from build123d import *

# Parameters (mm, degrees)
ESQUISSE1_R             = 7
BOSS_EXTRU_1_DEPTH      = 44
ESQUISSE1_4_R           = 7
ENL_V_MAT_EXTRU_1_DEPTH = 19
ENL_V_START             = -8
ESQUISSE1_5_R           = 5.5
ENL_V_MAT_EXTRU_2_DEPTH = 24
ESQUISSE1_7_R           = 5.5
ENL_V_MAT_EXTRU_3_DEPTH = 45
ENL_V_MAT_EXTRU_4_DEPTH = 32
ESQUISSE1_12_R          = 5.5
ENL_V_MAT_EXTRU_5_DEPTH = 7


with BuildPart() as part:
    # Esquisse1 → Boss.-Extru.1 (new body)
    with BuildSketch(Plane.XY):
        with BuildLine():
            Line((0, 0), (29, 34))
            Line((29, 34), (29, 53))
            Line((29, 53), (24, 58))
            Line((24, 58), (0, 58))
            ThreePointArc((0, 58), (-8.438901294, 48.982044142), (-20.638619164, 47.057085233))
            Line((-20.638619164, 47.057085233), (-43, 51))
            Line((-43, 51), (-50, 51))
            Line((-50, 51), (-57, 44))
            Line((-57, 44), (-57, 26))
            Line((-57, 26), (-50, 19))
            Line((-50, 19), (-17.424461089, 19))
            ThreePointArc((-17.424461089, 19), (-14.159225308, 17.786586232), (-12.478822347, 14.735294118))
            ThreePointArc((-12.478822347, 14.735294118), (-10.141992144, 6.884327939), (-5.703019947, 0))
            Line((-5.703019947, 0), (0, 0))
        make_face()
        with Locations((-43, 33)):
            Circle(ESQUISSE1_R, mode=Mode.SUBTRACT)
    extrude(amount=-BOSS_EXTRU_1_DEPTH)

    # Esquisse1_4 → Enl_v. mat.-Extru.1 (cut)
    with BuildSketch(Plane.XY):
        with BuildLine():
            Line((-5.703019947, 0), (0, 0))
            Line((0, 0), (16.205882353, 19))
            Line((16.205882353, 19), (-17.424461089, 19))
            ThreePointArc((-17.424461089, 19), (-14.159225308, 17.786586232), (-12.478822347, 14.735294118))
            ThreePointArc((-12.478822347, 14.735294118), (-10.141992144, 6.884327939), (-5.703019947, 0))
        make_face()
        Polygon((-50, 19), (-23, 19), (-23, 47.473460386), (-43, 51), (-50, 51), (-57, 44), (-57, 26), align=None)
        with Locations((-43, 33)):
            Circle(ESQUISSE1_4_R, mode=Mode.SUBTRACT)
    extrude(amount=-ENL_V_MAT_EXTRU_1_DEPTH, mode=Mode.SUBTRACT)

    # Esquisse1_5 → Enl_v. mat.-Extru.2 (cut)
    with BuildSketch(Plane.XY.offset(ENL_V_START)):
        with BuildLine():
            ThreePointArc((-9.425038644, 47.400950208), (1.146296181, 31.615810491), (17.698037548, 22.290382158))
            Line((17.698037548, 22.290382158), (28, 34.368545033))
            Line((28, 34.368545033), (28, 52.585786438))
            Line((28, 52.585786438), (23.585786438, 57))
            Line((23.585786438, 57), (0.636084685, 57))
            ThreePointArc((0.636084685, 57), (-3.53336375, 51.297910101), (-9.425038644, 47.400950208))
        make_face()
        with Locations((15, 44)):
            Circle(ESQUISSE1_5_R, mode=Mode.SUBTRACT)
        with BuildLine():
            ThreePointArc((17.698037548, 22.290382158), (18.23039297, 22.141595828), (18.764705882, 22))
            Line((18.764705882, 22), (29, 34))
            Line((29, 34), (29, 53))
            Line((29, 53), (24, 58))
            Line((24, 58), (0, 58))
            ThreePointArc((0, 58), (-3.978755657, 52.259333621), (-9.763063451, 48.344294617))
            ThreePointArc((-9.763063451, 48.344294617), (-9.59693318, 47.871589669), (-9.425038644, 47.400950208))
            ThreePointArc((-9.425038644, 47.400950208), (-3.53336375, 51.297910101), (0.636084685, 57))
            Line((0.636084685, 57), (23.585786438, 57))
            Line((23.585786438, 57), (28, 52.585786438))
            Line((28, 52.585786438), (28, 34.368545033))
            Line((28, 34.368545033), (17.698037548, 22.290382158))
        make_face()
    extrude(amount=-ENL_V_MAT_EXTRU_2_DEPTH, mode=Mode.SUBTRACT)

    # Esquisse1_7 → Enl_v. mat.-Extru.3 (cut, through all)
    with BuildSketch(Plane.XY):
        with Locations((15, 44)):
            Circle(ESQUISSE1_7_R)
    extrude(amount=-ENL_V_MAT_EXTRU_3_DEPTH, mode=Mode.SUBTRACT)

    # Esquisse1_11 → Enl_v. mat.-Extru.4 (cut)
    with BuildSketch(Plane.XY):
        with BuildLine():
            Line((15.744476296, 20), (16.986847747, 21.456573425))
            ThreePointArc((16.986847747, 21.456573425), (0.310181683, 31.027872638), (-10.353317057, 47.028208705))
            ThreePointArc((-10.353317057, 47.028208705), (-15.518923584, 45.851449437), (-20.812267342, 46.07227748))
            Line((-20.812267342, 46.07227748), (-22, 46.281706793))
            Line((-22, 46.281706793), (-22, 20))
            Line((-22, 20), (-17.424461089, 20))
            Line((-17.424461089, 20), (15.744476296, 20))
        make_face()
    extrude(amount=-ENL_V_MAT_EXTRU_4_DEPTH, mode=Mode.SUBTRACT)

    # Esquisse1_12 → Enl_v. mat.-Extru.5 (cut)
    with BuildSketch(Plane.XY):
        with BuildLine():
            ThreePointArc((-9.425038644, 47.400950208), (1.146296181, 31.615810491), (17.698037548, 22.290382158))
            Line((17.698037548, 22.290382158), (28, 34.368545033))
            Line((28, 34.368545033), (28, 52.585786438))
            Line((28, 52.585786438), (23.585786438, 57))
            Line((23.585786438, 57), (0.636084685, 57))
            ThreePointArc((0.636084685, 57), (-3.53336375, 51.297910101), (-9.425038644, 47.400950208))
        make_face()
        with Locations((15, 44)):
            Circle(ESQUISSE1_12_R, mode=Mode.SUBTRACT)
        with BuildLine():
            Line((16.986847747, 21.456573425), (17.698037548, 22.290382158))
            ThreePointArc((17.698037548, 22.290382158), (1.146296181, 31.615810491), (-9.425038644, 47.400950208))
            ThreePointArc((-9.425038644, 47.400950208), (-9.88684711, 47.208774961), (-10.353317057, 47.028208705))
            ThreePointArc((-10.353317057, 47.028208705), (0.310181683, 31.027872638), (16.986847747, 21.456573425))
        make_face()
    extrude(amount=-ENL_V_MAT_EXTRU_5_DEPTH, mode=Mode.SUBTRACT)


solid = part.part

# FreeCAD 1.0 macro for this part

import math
import FreeCAD as App
import Part
import Sketcher

V = App.Vector
Q = App.Units.Quantity

doc = App.newDocument("Part")
body = doc.addObject("PartDesign::Body", "Body")

# Sketch on XY plane
sketch1 = body.newObject("Sketcher::SketchObject", "Sketch")
sketch1.AttachmentSupport = (doc.getObject("XY_Plane"), [""])
sketch1.MapMode = "FlatFace"
sketch1.addGeometry(Part.LineSegment(V(0, 0, 0), V(29, 34, 0)), False)
sketch1.addGeometry(Part.LineSegment(V(29, 34, 0), V(29, 53, 0)), False)
sketch1.addGeometry(Part.LineSegment(V(29, 53, 0), V(24, 58, 0)), False)
sketch1.addGeometry(Part.LineSegment(V(24, 58, 0), V(0, 58, 0)), False)
sketch1.addGeometry(Part.ArcOfCircle(Part.Circle(V(-17, 66, 0), V(0, 0, 1), 19), math.radians(-100), math.radians(-24)), False)
sketch1.addGeometry(Part.LineSegment(V(-21, 47, 0), V(-43, 51, 0)), False)
sketch1.addGeometry(Part.LineSegment(V(-43, 51, 0), V(-50, 51, 0)), False)
sketch1.addGeometry(Part.LineSegment(V(-50, 51, 0), V(-57, 44, 0)), False)
sketch1.addGeometry(Part.LineSegment(V(-57, 44, 0), V(-57, 26, 0)), False)
sketch1.addGeometry(Part.LineSegment(V(-57, 26, 0), V(-50, 19, 0)), False)
sketch1.addGeometry(Part.LineSegment(V(-50, 19, 0), V(-17, 19, 0)), False)
sketch1.addGeometry(Part.ArcOfCircle(Part.Circle(V(-17, 14, 0), V(0, 0, 1), 5), math.radians(8), math.radians(90)), False)
sketch1.addGeometry(Part.ArcOfCircle(Part.Circle(V(16, 19, 0), V(0, 0, 1), 29), math.radians(-172), math.radians(-139)), False)
sketch1.addGeometry(Part.LineSegment(V(-6, 0, 0), V(0, 0, 0)), False)
sketch1.addGeometry(Part.Circle(V(-43, 33, 0), V(0, 0, 1), 7), False)
sketch1.addConstraint(Sketcher.Constraint("Coincident", 0, 2, 1, 1))
sketch1.addConstraint(Sketcher.Constraint("Coincident", 1, 2, 2, 1))
sketch1.addConstraint(Sketcher.Constraint("Coincident", 2, 2, 3, 1))
sketch1.addConstraint(Sketcher.Constraint("Coincident", 3, 2, 4, 2))
sketch1.addConstraint(Sketcher.Constraint("Tangent", 4, 1, 5, 1))
sketch1.addConstraint(Sketcher.Constraint("Coincident", 5, 2, 6, 1))
sketch1.addConstraint(Sketcher.Constraint("Coincident", 6, 2, 7, 1))
sketch1.addConstraint(Sketcher.Constraint("Coincident", 7, 2, 8, 1))
sketch1.addConstraint(Sketcher.Constraint("Coincident", 8, 2, 9, 1))
sketch1.addConstraint(Sketcher.Constraint("Coincident", 9, 2, 10, 1))
sketch1.addConstraint(Sketcher.Constraint("Tangent", 10, 2, 11, 2))
sketch1.addConstraint(Sketcher.Constraint("Tangent", 11, 1, 12, 1))
sketch1.addConstraint(Sketcher.Constraint("Coincident", 12, 2, 13, 1))
sketch1.addConstraint(Sketcher.Constraint("Coincident", 13, 2, 0, 1))
sketch1.addConstraint(Sketcher.Constraint("Vertical", 1))
sketch1.addConstraint(Sketcher.Constraint("Horizontal", 3))
sketch1.addConstraint(Sketcher.Constraint("Horizontal", 6))
sketch1.addConstraint(Sketcher.Constraint("Vertical", 8))
sketch1.addConstraint(Sketcher.Constraint("Horizontal", 10))
sketch1.addConstraint(Sketcher.Constraint("Horizontal", 13))
sketch1.addConstraint(Sketcher.Constraint("Coincident", 13, 2, -1, 1))
sketch1.addConstraint(Sketcher.Constraint("PointOnObject", 3, 2, -2))
sketch1.addConstraint(Sketcher.Constraint("Perpendicular", 2, 7))
sketch1.addConstraint(Sketcher.Constraint("Perpendicular", 7, 9))
sketch1.addConstraint(Sketcher.Constraint("Horizontal", 12, 3, 9, 2))
sketch1.addConstraint(Sketcher.Constraint("Vertical", 14, 3, 5, 2))
sketch1.addConstraint(Sketcher.Constraint("Vertical", 6, 2, 9, 2))
sketch1.addConstraint(Sketcher.Constraint("Equal", 7, 9))
sketch1.addConstraint(Sketcher.Constraint("Diameter", 14, 14.0))
sketch1.addConstraint(Sketcher.Constraint("Radius", 4, 19.0))
sketch1.addConstraint(Sketcher.Constraint("Radius", 11, 5.0))
sketch1.addConstraint(Sketcher.Constraint("Radius", 12, 29.0))
sketch1.addConstraint(Sketcher.Constraint("DistanceX", 3, 2, 3, 1, 24.0))
sketch1.addConstraint(Sketcher.Constraint("DistanceX", 6, 2, 6, 1, 7.0))
sketch1.addConstraint(Sketcher.Constraint("DistanceY", 1, 1, 1, 2, 19.0))
sketch1.addConstraint(Sketcher.Constraint("DistanceY", 8, 2, 8, 1, 18.0))
sketch1.addConstraint(Sketcher.Constraint("Angle", 5, Q("170 deg")))
sketch1.addConstraint(Sketcher.Constraint("DistanceY", -1, 1, 11, 3, 14.0))
sketch1.addConstraint(Sketcher.Constraint("DistanceX", 14, 3, -1, 1, 43.0))
sketch1.addConstraint(Sketcher.Constraint("DistanceY", -1, 1, 14, 3, 33.0))
sketch1.addConstraint(Sketcher.Constraint("DistanceX", -1, 1, 0, 2, 29.0))
sketch1.addConstraint(Sketcher.Constraint("DistanceY", -1, 1, 0, 2, 34.0))
sketch1.addConstraint(Sketcher.Constraint("DistanceY", -1, 1, 5, 2, 51.0))
sketch1.addConstraint(Sketcher.Constraint("DistanceX", 10, 1, 10, 2, 32.575539))
pad1 = body.newObject("PartDesign::Pad", "Pad")
pad1.Profile = sketch1
pad1.Length = 44
pad1.Reversed = True

# Sketch on XY plane
sketch2 = body.newObject("Sketcher::SketchObject", "Sketch001")
sketch2.AttachmentSupport = (doc.getObject("XY_Plane"), [""])
sketch2.MapMode = "FlatFace"
sketch2.addGeometry(Part.LineSegment(V(-6, 0, 0), V(0, 0, 0)), False)
sketch2.addGeometry(Part.LineSegment(V(0, 0, 0), V(16, 19, 0)), False)
sketch2.addGeometry(Part.LineSegment(V(16, 19, 0), V(-17, 19, 0)), False)
sketch2.addGeometry(Part.ArcOfCircle(Part.Circle(V(-17, 14, 0), V(0, 0, 1), 5), math.radians(8), math.radians(90)), False)
sketch2.addGeometry(Part.ArcOfCircle(Part.Circle(V(16, 19, 0), V(0, 0, 1), 29), math.radians(-172), math.radians(-139)), False)
sketch2.addGeometry(Part.LineSegment(V(-50, 19, 0), V(-23, 19, 0)), False)
sketch2.addGeometry(Part.LineSegment(V(-23, 19, 0), V(-23, 47, 0)), False)
sketch2.addGeometry(Part.LineSegment(V(-23, 47, 0), V(-43, 51, 0)), False)
sketch2.addGeometry(Part.LineSegment(V(-43, 51, 0), V(-50, 51, 0)), False)
sketch2.addGeometry(Part.LineSegment(V(-50, 51, 0), V(-57, 44, 0)), False)
sketch2.addGeometry(Part.LineSegment(V(-57, 44, 0), V(-57, 26, 0)), False)
sketch2.addGeometry(Part.LineSegment(V(-57, 26, 0), V(-50, 19, 0)), False)
sketch2.addGeometry(Part.Circle(V(-43, 33, 0), V(0, 0, 1), 7), False)
sketch2.addConstraint(Sketcher.Constraint("Coincident", 0, 2, 1, 1))
sketch2.addConstraint(Sketcher.Constraint("Coincident", 1, 2, 2, 1))
sketch2.addConstraint(Sketcher.Constraint("Tangent", 2, 2, 3, 2))
sketch2.addConstraint(Sketcher.Constraint("Tangent", 3, 1, 4, 1))
sketch2.addConstraint(Sketcher.Constraint("Coincident", 4, 2, 0, 1))
sketch2.addConstraint(Sketcher.Constraint("Coincident", 5, 2, 6, 1))
sketch2.addConstraint(Sketcher.Constraint("Coincident", 6, 2, 7, 1))
sketch2.addConstraint(Sketcher.Constraint("Coincident", 7, 2, 8, 1))
sketch2.addConstraint(Sketcher.Constraint("Coincident", 8, 2, 9, 1))
sketch2.addConstraint(Sketcher.Constraint("Coincident", 9, 2, 10, 1))
sketch2.addConstraint(Sketcher.Constraint("Coincident", 10, 2, 11, 1))
sketch2.addConstraint(Sketcher.Constraint("Coincident", 11, 2, 5, 1))
sketch2.addConstraint(Sketcher.Constraint("Horizontal", 0))
sketch2.addConstraint(Sketcher.Constraint("Horizontal", 2))
sketch2.addConstraint(Sketcher.Constraint("Horizontal", 5))
sketch2.addConstraint(Sketcher.Constraint("Vertical", 6))
sketch2.addConstraint(Sketcher.Constraint("Horizontal", 8))
sketch2.addConstraint(Sketcher.Constraint("Vertical", 10))
sketch2.addConstraint(Sketcher.Constraint("Coincident", 0, 2, -1, 1))
sketch2.addConstraint(Sketcher.Constraint("Coincident", 1, 2, 4, 3))
sketch2.addConstraint(Sketcher.Constraint("Perpendicular", 9, 11))
sketch2.addConstraint(Sketcher.Constraint("Horizontal", 2, 2, 5, 2))
sketch2.addConstraint(Sketcher.Constraint("Vertical", 12, 3, 7, 2))
sketch2.addConstraint(Sketcher.Constraint("Vertical", 8, 2, 11, 2))
sketch2.addConstraint(Sketcher.Constraint("Equal", 9, 11))
sketch2.addConstraint(Sketcher.Constraint("Diameter", 12, 14.0))
sketch2.addConstraint(Sketcher.Constraint("Radius", 3, 5.0))
sketch2.addConstraint(Sketcher.Constraint("Radius", 4, 29.0))
sketch2.addConstraint(Sketcher.Constraint("DistanceX", 5, 1, 5, 2, 27.0))
sketch2.addConstraint(Sketcher.Constraint("DistanceX", 8, 2, 8, 1, 7.0))
sketch2.addConstraint(Sketcher.Constraint("DistanceY", 10, 2, 10, 1, 18.0))
sketch2.addConstraint(Sketcher.Constraint("Angle", 7, Q("170 deg")))
sketch2.addConstraint(Sketcher.Constraint("DistanceY", -1, 1, 3, 3, 14.0))
sketch2.addConstraint(Sketcher.Constraint("DistanceX", 12, 3, -1, 1, 43.0))
sketch2.addConstraint(Sketcher.Constraint("DistanceY", -1, 1, 12, 3, 33.0))
sketch2.addConstraint(Sketcher.Constraint("DistanceY", -1, 1, 7, 2, 51.0))
sketch2.addConstraint(Sketcher.Constraint("DistanceX", 0, 1, 0, 2, 5.70302))
pocket1 = body.newObject("PartDesign::Pocket", "Pocket")
pocket1.Profile = sketch2
pocket1.Length = 19

# Sketch on XY plane
sketch3 = body.newObject("Sketcher::SketchObject", "Sketch002")
sketch3.AttachmentSupport = (doc.getObject("XY_Plane"), [""])
sketch3.MapMode = "FlatFace"
sketch3.AttachmentOffset = App.Placement(V(0, 0, -8), App.Rotation())
sketch3.addGeometry(Part.ArcOfCircle(Part.Circle(V(29, 61.7, 0), V(0, 0, 1), 41), math.radians(-160), math.radians(-106)), False)
sketch3.addGeometry(Part.ArcOfCircle(Part.Circle(V(29, 61.7, 0), V(0, 0, 1), 41), math.radians(-106), math.radians(-104.46)), False)
sketch3.addGeometry(Part.LineSegment(V(18.8, 22, 0), V(29, 34, 0)), False)
sketch3.addGeometry(Part.LineSegment(V(29, 34, 0), V(29, 53, 0)), False)
sketch3.addGeometry(Part.LineSegment(V(29, 53, 0), V(24, 58, 0)), False)
sketch3.addGeometry(Part.LineSegment(V(24, 58, 0), V(0, 58, 0)), False)
sketch3.addGeometry(Part.ArcOfCircle(Part.Circle(V(-17.3, 65.8, 0), V(0, 0, 1), 19), math.radians(-66), math.radians(-24)), False)
sketch3.addGeometry(Part.ArcOfCircle(Part.Circle(V(29, 61.7, 0), V(0, 0, 1), 41), math.radians(-160.99), math.radians(-159.59)), False)
sketch3.addGeometry(Part.Circle(V(15, 44, 0), V(0, 0, 1), 5.5), False)
sketch3.addConstraint(Sketcher.Constraint("Tangent", 0, 2, 1, 1))
sketch3.addConstraint(Sketcher.Constraint("Coincident", 1, 2, 2, 1))
sketch3.addConstraint(Sketcher.Constraint("Coincident", 2, 2, 3, 1))
sketch3.addConstraint(Sketcher.Constraint("Coincident", 3, 2, 4, 1))
sketch3.addConstraint(Sketcher.Constraint("Coincident", 4, 2, 5, 1))
sketch3.addConstraint(Sketcher.Constraint("Coincident", 5, 2, 6, 2))
sketch3.addConstraint(Sketcher.Constraint("Coincident", 6, 1, 7, 1))
sketch3.addConstraint(Sketcher.Constraint("Tangent", 7, 2, 0, 1))
sketch3.addConstraint(Sketcher.Constraint("Vertical", 3))
sketch3.addConstraint(Sketcher.Constraint("Horizontal", 5))
sketch3.addConstraint(Sketcher.Constraint("Equal", 0, 1))
sketch3.addConstraint(Sketcher.Constraint("Equal", 1, 7))
sketch3.addConstraint(Sketcher.Constraint("PointOnObject", 5, 2, -2))
sketch3.addConstraint(Sketcher.Constraint("Vertical", 7, 3, 2, 2))
sketch3.addConstraint(Sketcher.Constraint("Diameter", 8, 11.0))
sketch3.addConstraint(Sketcher.Constraint("Radius", 0, 41.0))
sketch3.addConstraint(Sketcher.Constraint("Radius", 6, 19.0))
sketch3.addConstraint(Sketcher.Constraint("DistanceX", 5, 2, 5, 1, 24.0))
sketch3.addConstraint(Sketcher.Constraint("DistanceY", 3, 1, 3, 2, 19.0))
sketch3.addConstraint(Sketcher.Constraint("Angle", 4, Q("135 deg")))
sketch3.addConstraint(Sketcher.Constraint("DistanceX", -1, 1, 0, 3, 29.0))
sketch3.addConstraint(Sketcher.Constraint("DistanceX", -1, 1, 8, 3, 15.0))
sketch3.addConstraint(Sketcher.Constraint("DistanceY", -1, 1, 8, 3, 44.0))
sketch3.addConstraint(Sketcher.Constraint("DistanceY", -1, 1, 1, 2, 22.0))
sketch3.addConstraint(Sketcher.Constraint("DistanceY", -1, 1, 2, 2, 34.0))
sketch3.addConstraint(Sketcher.Constraint("DistanceX", 6, 1, 0, 2, 27.461101))
sketch3.addConstraint(Sketcher.Constraint("DistanceX", 7, 2, -1, 1, 9.425039))
sketch3.addConstraint(Sketcher.Constraint("DistanceY", -1, 1, 7, 2, 47.40095))
sketch3.addConstraint(Sketcher.Constraint("DistanceY", 0, 3, 6, 3, 4.066559))
pocket2 = body.newObject("PartDesign::Pocket", "Pocket001")
pocket2.Profile = sketch3
pocket2.Length = 24

# Sketch on XY plane
sketch4 = body.newObject("Sketcher::SketchObject", "Sketch003")
sketch4.AttachmentSupport = (doc.getObject("XY_Plane"), [""])
sketch4.MapMode = "FlatFace"
sketch4.addGeometry(Part.Circle(V(15, 44, 0), V(0, 0, 1), 6), False)
sketch4.addConstraint(Sketcher.Constraint("Diameter", 0, 11.0))
sketch4.addConstraint(Sketcher.Constraint("DistanceX", -1, 1, 0, 3, 15.0))
sketch4.addConstraint(Sketcher.Constraint("DistanceY", -1, 1, 0, 3, 44.0))
pocket3 = body.newObject("PartDesign::Pocket", "Pocket002")
pocket3.Profile = sketch4
pocket3.Type = "ThroughAll"

# Sketch on XY plane
sketch5 = body.newObject("Sketcher::SketchObject", "Sketch004")
sketch5.AttachmentSupport = (doc.getObject("XY_Plane"), [""])
sketch5.MapMode = "FlatFace"
sketch5.addGeometry(Part.LineSegment(V(15.7, 20, 0), V(17, 21.5, 0)), False)
sketch5.addGeometry(Part.ArcOfCircle(Part.Circle(V(29, 61.7, 0), V(0, 0, 1), 42), math.radians(-160), math.radians(-107)), False)
sketch5.addGeometry(Part.ArcOfCircle(Part.Circle(V(-17.3, 65.8, 0), V(0, 0, 1), 20), math.radians(-100), math.radians(-70)), False)
sketch5.addGeometry(Part.LineSegment(V(-20.8, 46.1, 0), V(-22, 46.3, 0)), False)
sketch5.addGeometry(Part.LineSegment(V(-22, 46.3, 0), V(-22, 20, 0)), False)
sketch5.addGeometry(Part.LineSegment(V(-22, 20, 0), V(15.7, 20, 0)), False)
sketch5.addConstraint(Sketcher.Constraint("Coincident", 0, 2, 1, 2))
sketch5.addConstraint(Sketcher.Constraint("Coincident", 1, 1, 2, 2))
sketch5.addConstraint(Sketcher.Constraint("Tangent", 2, 1, 3, 1))
sketch5.addConstraint(Sketcher.Constraint("Coincident", 3, 2, 4, 1))
sketch5.addConstraint(Sketcher.Constraint("Coincident", 4, 2, 5, 1))
sketch5.addConstraint(Sketcher.Constraint("Coincident", 5, 2, 0, 1))
sketch5.addConstraint(Sketcher.Constraint("Vertical", 4))
sketch5.addConstraint(Sketcher.Constraint("Horizontal", 5))
sketch5.addConstraint(Sketcher.Constraint("Radius", 1, 42.0))
sketch5.addConstraint(Sketcher.Constraint("Radius", 2, 20.0))
sketch5.addConstraint(Sketcher.Constraint("Angle", 3, Q("170 deg")))
sketch5.addConstraint(Sketcher.Constraint("DistanceX", -1, 1, 1, 3, 29.0))
sketch5.addConstraint(Sketcher.Constraint("DistanceX", 3, 2, -1, 1, 22.0))
sketch5.addConstraint(Sketcher.Constraint("DistanceY", -1, 1, 4, 2, 20.0))
sketch5.addConstraint(Sketcher.Constraint("DistanceY", 0, 2, 1, 3, 40.2453))
sketch5.addConstraint(Sketcher.Constraint("DistanceY", 3, 2, 1, 1, 0.746502))
sketch5.addConstraint(Sketcher.Constraint("DistanceX", 5, 1, 5, 2, 37.744476))
sketch5.addConstraint(Sketcher.Constraint("DistanceY", 4, 2, 4, 1, 26.281707))
sketch5.addConstraint(Sketcher.Constraint("DistanceY", 1, 3, 2, 3, 4.066559))
pocket4 = body.newObject("PartDesign::Pocket", "Pocket003")
pocket4.Profile = sketch5
pocket4.Length = 32

# Sketch on XY plane
sketch6 = body.newObject("Sketcher::SketchObject", "Sketch005")
sketch6.AttachmentSupport = (doc.getObject("XY_Plane"), [""])
sketch6.MapMode = "FlatFace"
sketch6.addGeometry(Part.ArcOfCircle(Part.Circle(V(-17.3, 65.8, 0), V(0, 0, 1), 20), math.radians(-67), math.radians(-26)), False)
sketch6.addGeometry(Part.ArcOfCircle(Part.Circle(V(-17.3, 65.8, 0), V(0, 0, 1), 20), math.radians(-69.56), math.radians(-66.69)), False)
sketch6.addGeometry(Part.ArcOfCircle(Part.Circle(V(29, 61.7, 0), V(0, 0, 1), 42), math.radians(-160), math.radians(-107)), False)
sketch6.addGeometry(Part.LineSegment(V(17, 21.5, 0), V(17.7, 22.3, 0)), False)
sketch6.addGeometry(Part.LineSegment(V(17.7, 22.3, 0), V(28, 34.4, 0)), False)
sketch6.addGeometry(Part.LineSegment(V(28, 34.4, 0), V(28, 52.6, 0)), False)
sketch6.addGeometry(Part.LineSegment(V(28, 52.6, 0), V(23.6, 57, 0)), False)
sketch6.addGeometry(Part.LineSegment(V(23.6, 57, 0), V(0.6, 57, 0)), False)
sketch6.addGeometry(Part.Circle(V(15, 44, 0), V(0, 0, 1), 5.5), False)
sketch6.addConstraint(Sketcher.Constraint("Tangent", 0, 1, 1, 2))
sketch6.addConstraint(Sketcher.Constraint("Coincident", 1, 1, 2, 1))
sketch6.addConstraint(Sketcher.Constraint("Coincident", 2, 2, 3, 1))
sketch6.addConstraint(Sketcher.Constraint("Coincident", 3, 2, 4, 1))
sketch6.addConstraint(Sketcher.Constraint("Coincident", 4, 2, 5, 1))
sketch6.addConstraint(Sketcher.Constraint("Coincident", 5, 2, 6, 1))
sketch6.addConstraint(Sketcher.Constraint("Coincident", 6, 2, 7, 1))
sketch6.addConstraint(Sketcher.Constraint("Coincident", 7, 2, 0, 2))
sketch6.addConstraint(Sketcher.Constraint("Vertical", 5))
sketch6.addConstraint(Sketcher.Constraint("Horizontal", 7))
sketch6.addConstraint(Sketcher.Constraint("Equal", 0, 1))
sketch6.addConstraint(Sketcher.Constraint("Parallel", 3, 4))
sketch6.addConstraint(Sketcher.Constraint("Diameter", 8, 11.0))
sketch6.addConstraint(Sketcher.Constraint("Radius", 0, 20.0))
sketch6.addConstraint(Sketcher.Constraint("Radius", 2, 42.0))
sketch6.addConstraint(Sketcher.Constraint("Angle", 6, Q("135 deg")))
sketch6.addConstraint(Sketcher.Constraint("DistanceX", -1, 1, 2, 3, 29.0))
sketch6.addConstraint(Sketcher.Constraint("DistanceX", -1, 1, 8, 3, 15.0))
sketch6.addConstraint(Sketcher.Constraint("DistanceY", -1, 1, 8, 3, 44.0))
sketch6.addConstraint(Sketcher.Constraint("DistanceX", -1, 1, 4, 2, 28.0))
sketch6.addConstraint(Sketcher.Constraint("DistanceY", -1, 1, 6, 2, 57.0))
sketch6.addConstraint(Sketcher.Constraint("DistanceX", 7, 2, 7, 1, 22.949702))
sketch6.addConstraint(Sketcher.Constraint("Distance", 4, 15.8749))
sketch6.addConstraint(Sketcher.Constraint("DistanceY", 5, 1, 5, 2, 18.217241))
sketch6.addConstraint(Sketcher.Constraint("DistanceY", 2, 2, 2, 3, 40.2453))
sketch6.addConstraint(Sketcher.Constraint("DistanceX", 1, 1, 7, 2, 10.989402))
sketch6.addConstraint(Sketcher.Constraint("Distance", 6, 6.242641))
sketch6.addConstraint(Sketcher.Constraint("DistanceX", 0, 1, -1, 1, 9.425039))
sketch6.addConstraint(Sketcher.Constraint("DistanceY", -1, 1, 0, 1, 47.40095))
pocket5 = body.newObject("PartDesign::Pocket", "Pocket004")
pocket5.Profile = sketch6
pocket5.Length = 7

doc.recompute()
